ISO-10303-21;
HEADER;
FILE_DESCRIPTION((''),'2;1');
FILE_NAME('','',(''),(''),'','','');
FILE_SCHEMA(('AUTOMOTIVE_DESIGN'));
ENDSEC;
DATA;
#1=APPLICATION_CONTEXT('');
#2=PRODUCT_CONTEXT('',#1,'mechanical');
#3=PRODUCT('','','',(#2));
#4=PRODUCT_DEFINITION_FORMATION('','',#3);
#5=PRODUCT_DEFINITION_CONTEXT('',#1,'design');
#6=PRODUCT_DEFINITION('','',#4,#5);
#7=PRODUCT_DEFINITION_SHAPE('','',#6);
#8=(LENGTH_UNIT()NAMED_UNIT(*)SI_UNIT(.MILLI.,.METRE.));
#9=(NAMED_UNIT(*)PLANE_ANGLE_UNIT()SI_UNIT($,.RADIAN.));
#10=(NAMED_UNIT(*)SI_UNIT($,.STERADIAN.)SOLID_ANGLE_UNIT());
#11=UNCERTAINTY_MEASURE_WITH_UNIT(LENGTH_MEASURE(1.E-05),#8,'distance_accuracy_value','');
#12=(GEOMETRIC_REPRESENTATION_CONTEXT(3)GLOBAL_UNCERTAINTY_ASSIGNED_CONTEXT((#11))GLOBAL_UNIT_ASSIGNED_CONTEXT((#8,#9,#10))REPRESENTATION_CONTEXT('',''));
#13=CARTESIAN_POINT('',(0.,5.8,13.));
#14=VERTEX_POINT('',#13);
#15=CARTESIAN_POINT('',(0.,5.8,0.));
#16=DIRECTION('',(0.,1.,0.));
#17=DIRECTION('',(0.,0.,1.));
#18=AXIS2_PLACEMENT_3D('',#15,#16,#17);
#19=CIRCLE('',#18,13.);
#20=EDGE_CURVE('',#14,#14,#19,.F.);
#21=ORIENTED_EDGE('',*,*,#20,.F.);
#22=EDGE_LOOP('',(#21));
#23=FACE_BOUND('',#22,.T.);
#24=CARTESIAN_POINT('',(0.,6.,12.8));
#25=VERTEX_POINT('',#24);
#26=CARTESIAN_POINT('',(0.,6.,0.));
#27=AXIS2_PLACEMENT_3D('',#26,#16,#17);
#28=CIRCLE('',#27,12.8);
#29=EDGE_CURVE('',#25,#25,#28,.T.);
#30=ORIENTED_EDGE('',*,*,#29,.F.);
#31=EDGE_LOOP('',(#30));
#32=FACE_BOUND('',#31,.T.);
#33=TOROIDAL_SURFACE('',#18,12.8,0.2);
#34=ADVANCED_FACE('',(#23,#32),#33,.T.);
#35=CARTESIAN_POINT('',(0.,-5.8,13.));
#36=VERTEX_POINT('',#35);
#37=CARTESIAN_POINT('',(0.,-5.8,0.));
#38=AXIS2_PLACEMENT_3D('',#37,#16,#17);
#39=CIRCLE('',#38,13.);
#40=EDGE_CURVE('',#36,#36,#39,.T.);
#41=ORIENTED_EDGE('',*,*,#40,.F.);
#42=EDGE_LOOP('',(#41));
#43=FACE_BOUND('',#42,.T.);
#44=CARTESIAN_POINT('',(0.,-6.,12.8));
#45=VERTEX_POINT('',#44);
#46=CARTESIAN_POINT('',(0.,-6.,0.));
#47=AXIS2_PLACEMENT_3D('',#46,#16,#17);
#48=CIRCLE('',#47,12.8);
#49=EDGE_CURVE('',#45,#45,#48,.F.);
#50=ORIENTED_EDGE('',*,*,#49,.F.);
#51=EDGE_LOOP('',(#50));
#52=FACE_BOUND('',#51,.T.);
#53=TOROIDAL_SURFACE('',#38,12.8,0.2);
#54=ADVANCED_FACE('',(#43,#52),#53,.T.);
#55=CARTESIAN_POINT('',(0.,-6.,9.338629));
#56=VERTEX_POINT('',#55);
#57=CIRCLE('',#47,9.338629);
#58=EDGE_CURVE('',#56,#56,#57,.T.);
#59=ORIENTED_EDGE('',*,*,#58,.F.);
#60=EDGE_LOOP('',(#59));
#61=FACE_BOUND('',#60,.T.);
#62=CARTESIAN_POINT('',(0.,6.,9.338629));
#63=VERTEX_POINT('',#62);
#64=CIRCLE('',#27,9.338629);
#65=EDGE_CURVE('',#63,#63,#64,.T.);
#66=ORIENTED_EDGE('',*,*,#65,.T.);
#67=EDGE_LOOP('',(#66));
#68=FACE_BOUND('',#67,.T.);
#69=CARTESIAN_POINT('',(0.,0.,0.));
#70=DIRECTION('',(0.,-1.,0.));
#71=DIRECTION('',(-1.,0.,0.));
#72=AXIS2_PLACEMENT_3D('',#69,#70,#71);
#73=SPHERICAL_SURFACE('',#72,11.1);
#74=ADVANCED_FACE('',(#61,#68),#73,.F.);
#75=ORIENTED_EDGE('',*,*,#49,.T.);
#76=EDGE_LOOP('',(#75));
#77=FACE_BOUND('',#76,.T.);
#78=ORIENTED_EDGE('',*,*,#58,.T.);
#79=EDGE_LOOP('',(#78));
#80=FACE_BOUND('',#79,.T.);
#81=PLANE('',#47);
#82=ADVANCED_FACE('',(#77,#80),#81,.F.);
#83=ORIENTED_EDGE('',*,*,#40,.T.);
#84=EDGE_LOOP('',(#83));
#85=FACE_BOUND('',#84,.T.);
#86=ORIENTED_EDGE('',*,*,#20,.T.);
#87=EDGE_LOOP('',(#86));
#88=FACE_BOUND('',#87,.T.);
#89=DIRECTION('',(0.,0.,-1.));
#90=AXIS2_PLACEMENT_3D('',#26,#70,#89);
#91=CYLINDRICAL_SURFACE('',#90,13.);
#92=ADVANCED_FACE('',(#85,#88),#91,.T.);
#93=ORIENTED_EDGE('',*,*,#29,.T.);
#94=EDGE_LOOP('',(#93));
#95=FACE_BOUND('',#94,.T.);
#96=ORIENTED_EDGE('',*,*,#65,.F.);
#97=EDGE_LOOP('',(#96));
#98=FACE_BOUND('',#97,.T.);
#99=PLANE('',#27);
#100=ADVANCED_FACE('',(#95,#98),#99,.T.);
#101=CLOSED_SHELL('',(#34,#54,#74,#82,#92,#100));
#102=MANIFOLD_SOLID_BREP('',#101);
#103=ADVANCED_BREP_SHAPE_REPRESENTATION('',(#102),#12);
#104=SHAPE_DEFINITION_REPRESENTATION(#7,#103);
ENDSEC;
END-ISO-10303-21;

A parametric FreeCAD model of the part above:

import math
import FreeCAD as App
import Part
import Sketcher

V = App.Vector


def edges_at(feature, points):
    """Names of the edges that pass closest to the given points."""
    edges = feature.Shape.Edges
    near = lambda p: min(range(len(edges)), key=lambda i: edges[i].distToShape(Part.Vertex(*p))[0])
    return sorted({f"Edge{near(p) + 1}" for p in points})

doc = App.newDocument("Part")
body = doc.addObject("PartDesign::Body", "Body")

# Sketch on XZ plane
sketch1 = body.newObject("Sketcher::SketchObject", "Sketch")
sketch1.AttachmentSupport = (doc.getObject("XZ_Plane"), [""])
sketch1.MapMode = "FlatFace"
sketch1.addGeometry(Part.Circle(V(0, 0, 0), V(0, 0, 1), 13), False)
sketch1.addConstraint(Sketcher.Constraint("Coincident", 0, 3, -1, 1))
sketch1.addConstraint(Sketcher.Constraint("Diameter", 0, 26.0))
pad1 = body.newObject("PartDesign::Pad", "Pad")
pad1.Profile = sketch1
pad1.Length = 12
pad1.Midplane = True

# Sketch on XY plane
sketch2 = body.newObject("Sketcher::SketchObject", "Sketch001")
sketch2.AttachmentSupport = (doc.getObject("XY_Plane"), [""])
sketch2.MapMode = "FlatFace"
sketch2.addGeometry(Part.LineSegment(V(0, 11, 0), V(0, -11, 0)), False)
sketch2.addGeometry(Part.ArcOfCircle(Part.Circle(V(0, 0, 0), V(0, 0, 1), 11), math.radians(-90), math.radians(90)), False)
sketch2.addConstraint(Sketcher.Constraint("Coincident", 0, 1, 1, 2))
sketch2.addConstraint(Sketcher.Constraint("Coincident", 1, 1, 0, 2))
sketch2.addConstraint(Sketcher.Constraint("Vertical", 0))
sketch2.addConstraint(Sketcher.Constraint("Coincident", 1, 3, -1, 1))
sketch2.addConstraint(Sketcher.Constraint("PointOnObject", 0, 1, -2))
sketch2.addConstraint(Sketcher.Constraint("Radius", 1, 11.1))
groove = body.newObject("PartDesign::Groove", "Groove")
groove.Profile = sketch2
groove.ReferenceAxis = (sketch2, ["V_Axis"])
groove.Angle = 360
doc.recompute()

fillet = body.newObject("PartDesign::Fillet", "Fillet")
fillet.Base = (groove, edges_at(groove, [(-13, -6, 0), (-13, 6, 0)]))
fillet.Radius = 0.2

doc.recompute()
